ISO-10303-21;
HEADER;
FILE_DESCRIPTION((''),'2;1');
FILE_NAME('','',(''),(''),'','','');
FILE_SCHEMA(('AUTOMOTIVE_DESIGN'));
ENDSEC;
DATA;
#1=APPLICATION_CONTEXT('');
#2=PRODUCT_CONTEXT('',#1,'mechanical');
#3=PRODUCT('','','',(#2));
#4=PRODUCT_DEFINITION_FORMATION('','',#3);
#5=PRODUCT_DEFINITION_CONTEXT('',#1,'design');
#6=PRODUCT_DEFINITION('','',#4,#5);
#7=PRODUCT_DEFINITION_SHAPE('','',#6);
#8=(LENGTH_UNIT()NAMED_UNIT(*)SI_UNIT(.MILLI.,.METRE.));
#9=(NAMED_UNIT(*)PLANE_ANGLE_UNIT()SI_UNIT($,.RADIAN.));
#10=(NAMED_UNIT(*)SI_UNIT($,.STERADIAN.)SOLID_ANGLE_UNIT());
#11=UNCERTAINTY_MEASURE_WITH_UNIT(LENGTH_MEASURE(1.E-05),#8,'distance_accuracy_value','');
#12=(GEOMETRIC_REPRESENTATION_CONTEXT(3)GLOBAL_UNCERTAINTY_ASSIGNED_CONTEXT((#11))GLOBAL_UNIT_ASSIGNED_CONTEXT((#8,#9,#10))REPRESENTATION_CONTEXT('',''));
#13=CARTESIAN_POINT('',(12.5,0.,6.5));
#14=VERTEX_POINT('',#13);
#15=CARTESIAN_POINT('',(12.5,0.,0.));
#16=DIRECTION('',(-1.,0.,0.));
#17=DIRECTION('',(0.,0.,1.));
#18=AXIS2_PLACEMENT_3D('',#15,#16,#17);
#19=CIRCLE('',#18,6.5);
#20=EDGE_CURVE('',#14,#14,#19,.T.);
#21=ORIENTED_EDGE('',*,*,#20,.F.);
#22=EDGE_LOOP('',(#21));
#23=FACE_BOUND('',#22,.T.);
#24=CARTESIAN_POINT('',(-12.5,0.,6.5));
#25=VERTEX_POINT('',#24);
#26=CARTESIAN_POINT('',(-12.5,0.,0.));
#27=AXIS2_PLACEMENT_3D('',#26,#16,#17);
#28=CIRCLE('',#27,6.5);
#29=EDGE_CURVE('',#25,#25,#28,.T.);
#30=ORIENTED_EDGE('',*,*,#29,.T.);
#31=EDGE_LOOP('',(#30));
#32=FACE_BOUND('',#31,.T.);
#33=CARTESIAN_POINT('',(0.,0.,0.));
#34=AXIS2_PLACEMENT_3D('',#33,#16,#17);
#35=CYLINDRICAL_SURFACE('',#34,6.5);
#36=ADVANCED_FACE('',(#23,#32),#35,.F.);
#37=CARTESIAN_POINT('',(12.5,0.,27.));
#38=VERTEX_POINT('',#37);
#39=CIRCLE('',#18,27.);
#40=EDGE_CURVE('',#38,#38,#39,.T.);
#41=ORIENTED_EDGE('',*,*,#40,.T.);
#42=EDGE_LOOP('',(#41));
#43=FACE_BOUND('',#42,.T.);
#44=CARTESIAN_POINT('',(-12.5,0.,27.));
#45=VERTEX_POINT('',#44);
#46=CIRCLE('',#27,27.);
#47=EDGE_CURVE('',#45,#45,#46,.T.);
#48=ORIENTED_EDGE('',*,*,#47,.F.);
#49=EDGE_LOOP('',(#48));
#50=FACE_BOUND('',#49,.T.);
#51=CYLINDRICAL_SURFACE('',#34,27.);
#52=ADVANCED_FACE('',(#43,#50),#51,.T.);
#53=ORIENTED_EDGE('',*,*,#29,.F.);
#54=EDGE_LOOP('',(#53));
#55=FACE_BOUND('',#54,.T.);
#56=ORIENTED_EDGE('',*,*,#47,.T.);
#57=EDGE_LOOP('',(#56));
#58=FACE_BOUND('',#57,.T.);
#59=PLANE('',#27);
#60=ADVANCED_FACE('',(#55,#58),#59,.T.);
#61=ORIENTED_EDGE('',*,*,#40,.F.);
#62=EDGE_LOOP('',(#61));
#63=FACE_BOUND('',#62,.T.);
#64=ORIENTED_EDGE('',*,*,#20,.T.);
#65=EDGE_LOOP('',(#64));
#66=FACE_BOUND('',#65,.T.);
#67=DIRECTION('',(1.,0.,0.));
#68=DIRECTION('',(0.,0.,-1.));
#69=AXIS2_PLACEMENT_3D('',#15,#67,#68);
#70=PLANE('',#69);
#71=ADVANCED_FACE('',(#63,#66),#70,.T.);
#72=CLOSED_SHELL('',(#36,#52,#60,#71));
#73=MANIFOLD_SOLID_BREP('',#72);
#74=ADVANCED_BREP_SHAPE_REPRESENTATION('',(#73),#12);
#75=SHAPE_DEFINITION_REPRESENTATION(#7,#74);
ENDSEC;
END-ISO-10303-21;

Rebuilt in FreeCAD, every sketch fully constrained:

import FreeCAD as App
import Part
import Sketcher
from FreeCAD import Vector
Q = App.Units.Quantity


def add_polygon(sketch, points):
    """Adds a closed chain of lines whose ends are joined by coincident constraints."""
    first, n = sketch.GeometryCount, len(points)
    for a, b in zip(points, points[1:] + points[:1]):
        sketch.addGeometry(Part.LineSegment(App.Vector(*a, 0), App.Vector(*b, 0)), False)
    for i in range(n):
        sketch.addConstraint(Sketcher.Constraint("Coincident", first + i, 2, first + (i + 1) % n, 1))

doc = App.newDocument("Part")
body = doc.addObject("PartDesign::Body", "Body")

sketch1 = body.newObject("Sketcher::SketchObject", "Sketch")
sketch1.AttachmentSupport = (doc.getObject("XY_Plane"), [""])
sketch1.MapMode = "FlatFace"
add_polygon(sketch1, [(-12, 27), (-12, 6), (12, 6), (12, 27)])
sketch1.addConstraint([
    Sketcher.Constraint("Vertical", 0),
    Sketcher.Constraint("Horizontal", 1),
    Sketcher.Constraint("Vertical", 2),
    Sketcher.Constraint("Horizontal", 3),
    Sketcher.Constraint("DistanceX", 1, 1, 1, 2, Q("25 mm")),
    Sketcher.Constraint("DistanceY", 0, 2, 0, 1, Q("20.5 mm")),
    Sketcher.Constraint("DistanceY", -1, 1, 2, 2, Q("27 mm")),
    Sketcher.Constraint("DistanceX", 0, 2, -1, 1, Q("12.5 mm")),
])
revolution = body.newObject("PartDesign::Revolution", "Revolution")
revolution.Profile = sketch1
revolution.ReferenceAxis = (sketch1, ["H_Axis"])
revolution.Angle = 360

doc.recompute()
